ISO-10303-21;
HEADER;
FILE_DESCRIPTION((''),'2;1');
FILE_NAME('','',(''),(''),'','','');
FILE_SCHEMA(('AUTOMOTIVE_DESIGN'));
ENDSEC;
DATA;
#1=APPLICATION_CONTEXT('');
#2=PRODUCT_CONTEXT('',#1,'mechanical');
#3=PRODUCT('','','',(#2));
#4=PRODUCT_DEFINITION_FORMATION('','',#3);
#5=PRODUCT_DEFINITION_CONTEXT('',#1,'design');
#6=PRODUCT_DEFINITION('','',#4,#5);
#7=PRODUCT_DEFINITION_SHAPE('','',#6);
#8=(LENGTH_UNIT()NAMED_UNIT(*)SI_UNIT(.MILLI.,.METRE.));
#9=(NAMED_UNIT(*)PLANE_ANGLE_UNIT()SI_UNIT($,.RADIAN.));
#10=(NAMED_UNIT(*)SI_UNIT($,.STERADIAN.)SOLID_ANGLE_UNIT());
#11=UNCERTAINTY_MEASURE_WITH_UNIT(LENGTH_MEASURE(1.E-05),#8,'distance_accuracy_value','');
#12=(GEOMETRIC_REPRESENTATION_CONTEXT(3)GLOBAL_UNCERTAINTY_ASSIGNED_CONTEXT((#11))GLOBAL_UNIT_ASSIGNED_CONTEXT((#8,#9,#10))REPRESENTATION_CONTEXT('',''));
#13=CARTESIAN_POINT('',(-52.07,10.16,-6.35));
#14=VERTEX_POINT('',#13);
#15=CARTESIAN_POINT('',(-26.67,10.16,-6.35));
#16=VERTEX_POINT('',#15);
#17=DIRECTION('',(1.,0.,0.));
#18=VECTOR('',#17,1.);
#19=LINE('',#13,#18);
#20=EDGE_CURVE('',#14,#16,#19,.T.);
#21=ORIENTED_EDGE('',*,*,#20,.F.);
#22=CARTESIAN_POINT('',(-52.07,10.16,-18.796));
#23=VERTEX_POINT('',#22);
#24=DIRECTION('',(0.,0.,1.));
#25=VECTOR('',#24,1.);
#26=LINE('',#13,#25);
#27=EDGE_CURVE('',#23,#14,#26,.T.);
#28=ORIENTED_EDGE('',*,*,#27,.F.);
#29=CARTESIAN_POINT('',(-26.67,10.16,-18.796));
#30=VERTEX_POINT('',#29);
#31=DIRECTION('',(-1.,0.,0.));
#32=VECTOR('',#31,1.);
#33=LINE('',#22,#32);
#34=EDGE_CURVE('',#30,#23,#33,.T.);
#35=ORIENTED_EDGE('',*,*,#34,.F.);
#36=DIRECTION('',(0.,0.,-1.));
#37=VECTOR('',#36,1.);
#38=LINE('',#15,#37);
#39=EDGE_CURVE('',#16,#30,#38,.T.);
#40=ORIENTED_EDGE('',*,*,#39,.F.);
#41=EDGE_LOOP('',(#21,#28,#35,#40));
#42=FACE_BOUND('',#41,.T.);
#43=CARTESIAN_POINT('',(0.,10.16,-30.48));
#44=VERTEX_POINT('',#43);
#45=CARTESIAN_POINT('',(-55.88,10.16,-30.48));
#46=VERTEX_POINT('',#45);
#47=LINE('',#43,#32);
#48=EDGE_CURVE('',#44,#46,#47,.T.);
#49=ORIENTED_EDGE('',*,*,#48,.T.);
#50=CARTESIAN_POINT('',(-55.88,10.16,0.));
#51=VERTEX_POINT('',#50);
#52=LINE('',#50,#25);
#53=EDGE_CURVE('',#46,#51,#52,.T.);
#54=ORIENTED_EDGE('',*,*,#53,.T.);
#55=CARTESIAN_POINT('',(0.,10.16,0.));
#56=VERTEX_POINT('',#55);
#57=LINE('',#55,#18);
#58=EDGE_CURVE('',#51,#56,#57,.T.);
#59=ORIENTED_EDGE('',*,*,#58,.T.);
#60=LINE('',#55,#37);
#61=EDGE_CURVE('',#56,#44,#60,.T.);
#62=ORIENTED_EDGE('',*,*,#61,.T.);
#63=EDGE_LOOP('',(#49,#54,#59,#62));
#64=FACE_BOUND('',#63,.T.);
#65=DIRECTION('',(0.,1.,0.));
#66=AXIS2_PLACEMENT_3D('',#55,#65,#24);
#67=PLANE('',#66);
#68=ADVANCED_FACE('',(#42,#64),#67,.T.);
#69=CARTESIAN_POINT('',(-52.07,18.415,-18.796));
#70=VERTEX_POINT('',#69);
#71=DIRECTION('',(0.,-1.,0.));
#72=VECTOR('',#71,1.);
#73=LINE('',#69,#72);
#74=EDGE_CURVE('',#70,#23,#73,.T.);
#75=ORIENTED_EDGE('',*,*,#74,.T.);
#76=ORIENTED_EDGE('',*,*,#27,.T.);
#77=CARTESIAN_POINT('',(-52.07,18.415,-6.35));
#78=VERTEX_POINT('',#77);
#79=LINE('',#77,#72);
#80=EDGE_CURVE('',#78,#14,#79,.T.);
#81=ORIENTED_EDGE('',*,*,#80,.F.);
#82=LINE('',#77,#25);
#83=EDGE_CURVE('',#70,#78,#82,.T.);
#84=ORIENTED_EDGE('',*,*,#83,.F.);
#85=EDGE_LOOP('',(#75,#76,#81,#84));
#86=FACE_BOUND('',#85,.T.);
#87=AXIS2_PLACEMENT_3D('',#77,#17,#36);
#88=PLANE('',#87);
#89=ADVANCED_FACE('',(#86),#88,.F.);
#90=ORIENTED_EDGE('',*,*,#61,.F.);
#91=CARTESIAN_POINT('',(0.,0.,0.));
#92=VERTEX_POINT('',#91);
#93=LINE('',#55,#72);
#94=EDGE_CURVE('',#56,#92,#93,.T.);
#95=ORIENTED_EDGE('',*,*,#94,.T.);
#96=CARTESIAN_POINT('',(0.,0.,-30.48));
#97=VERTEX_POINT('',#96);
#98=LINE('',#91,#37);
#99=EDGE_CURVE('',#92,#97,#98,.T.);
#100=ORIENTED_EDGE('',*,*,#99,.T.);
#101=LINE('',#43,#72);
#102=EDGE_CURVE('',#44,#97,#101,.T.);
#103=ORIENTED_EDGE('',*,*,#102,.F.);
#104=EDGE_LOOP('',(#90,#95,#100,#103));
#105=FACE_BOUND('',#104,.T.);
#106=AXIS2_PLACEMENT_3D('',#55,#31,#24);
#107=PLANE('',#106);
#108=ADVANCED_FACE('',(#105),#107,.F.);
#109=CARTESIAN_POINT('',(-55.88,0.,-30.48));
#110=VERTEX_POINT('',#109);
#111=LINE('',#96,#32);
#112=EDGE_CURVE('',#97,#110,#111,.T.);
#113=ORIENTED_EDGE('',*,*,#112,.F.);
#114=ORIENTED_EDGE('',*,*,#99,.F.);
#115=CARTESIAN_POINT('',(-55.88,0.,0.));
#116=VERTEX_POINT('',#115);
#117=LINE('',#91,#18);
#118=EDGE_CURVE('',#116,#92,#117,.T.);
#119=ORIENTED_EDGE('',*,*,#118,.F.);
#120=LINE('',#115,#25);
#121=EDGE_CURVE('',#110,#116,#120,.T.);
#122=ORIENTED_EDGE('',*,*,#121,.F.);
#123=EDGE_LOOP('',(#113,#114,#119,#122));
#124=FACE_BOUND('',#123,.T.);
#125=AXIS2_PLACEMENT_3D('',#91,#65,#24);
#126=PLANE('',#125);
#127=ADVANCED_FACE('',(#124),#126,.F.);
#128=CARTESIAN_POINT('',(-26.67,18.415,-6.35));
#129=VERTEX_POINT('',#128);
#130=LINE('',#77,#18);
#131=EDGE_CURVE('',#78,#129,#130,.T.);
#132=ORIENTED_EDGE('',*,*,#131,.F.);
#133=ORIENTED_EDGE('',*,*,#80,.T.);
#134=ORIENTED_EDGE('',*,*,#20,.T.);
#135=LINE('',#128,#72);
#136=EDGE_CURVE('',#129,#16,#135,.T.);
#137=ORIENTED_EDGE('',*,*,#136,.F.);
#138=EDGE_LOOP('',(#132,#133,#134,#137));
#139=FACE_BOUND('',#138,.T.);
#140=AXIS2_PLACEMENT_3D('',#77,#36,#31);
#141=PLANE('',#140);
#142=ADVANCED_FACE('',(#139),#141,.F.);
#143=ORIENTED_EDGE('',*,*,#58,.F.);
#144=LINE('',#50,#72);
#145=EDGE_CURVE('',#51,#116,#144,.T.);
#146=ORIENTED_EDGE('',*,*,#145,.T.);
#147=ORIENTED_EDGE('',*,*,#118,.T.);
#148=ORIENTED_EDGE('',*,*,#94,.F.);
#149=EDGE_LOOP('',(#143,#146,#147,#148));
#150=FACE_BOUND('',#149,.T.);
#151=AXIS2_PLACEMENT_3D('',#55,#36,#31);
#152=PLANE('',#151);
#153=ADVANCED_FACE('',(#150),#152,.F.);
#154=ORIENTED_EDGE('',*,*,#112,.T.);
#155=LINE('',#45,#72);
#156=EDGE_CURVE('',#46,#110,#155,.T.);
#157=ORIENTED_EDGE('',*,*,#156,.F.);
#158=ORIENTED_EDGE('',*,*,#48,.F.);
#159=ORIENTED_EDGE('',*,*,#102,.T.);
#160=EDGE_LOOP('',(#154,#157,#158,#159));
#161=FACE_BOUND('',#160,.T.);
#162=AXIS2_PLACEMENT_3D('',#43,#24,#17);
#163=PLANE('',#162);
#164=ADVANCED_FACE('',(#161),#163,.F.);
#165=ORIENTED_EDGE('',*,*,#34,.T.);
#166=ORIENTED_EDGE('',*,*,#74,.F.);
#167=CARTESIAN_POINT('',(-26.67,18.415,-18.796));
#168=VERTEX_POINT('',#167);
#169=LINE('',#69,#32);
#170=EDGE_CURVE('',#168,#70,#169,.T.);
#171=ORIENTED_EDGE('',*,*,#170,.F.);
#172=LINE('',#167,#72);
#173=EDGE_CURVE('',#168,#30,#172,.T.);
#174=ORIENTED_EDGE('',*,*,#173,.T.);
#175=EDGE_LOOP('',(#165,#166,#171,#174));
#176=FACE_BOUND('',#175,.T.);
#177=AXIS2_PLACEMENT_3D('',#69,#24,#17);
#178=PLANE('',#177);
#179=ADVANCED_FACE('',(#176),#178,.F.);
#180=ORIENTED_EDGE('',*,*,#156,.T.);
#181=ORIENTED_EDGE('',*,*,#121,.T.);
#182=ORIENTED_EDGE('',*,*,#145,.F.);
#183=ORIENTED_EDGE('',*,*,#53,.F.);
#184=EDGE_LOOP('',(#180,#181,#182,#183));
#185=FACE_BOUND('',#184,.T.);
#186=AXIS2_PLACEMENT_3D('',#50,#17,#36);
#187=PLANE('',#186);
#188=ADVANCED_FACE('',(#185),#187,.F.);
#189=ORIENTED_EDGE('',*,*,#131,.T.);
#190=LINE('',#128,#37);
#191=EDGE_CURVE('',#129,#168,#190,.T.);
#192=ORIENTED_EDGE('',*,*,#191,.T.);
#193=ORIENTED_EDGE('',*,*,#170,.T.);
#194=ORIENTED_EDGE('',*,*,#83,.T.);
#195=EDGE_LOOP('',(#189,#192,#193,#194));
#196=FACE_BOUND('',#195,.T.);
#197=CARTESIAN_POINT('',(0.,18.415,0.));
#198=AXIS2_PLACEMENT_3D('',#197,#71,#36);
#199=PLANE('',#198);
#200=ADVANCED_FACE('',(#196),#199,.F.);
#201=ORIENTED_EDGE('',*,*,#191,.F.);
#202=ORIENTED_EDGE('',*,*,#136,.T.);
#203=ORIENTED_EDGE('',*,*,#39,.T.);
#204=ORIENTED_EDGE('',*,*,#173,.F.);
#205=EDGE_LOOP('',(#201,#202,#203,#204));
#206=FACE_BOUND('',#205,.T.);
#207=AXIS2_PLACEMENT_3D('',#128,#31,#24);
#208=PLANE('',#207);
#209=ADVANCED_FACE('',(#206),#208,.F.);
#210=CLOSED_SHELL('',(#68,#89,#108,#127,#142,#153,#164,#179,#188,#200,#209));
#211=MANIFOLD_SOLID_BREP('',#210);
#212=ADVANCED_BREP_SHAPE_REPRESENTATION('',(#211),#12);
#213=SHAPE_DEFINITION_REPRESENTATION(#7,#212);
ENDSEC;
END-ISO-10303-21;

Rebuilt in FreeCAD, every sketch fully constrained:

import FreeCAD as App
import Part
import Sketcher
Q = App.Units.Quantity

doc = App.newDocument("Part")
body = doc.addObject("PartDesign::Body", "Body")

# Sketch on XZ plane
sketch1 = body.newObject("Sketcher::SketchObject", "Sketch")
sketch1.AttachmentSupport = (doc.getObject("XZ_Plane"), [""])
sketch1.MapMode = "FlatFace"
sketch1.addGeometry([
    Part.LineSegment(App.Vector(-55.88, -30.48, 0), App.Vector(-55.88, 0, 0)),
    Part.LineSegment(App.Vector(-55.88, 0, 0), App.Vector(0, 0, 0)),
    Part.LineSegment(App.Vector(0, 0, 0), App.Vector(0, -30.48, 0)),
    Part.LineSegment(App.Vector(0, -30.48, 0), App.Vector(-55.88, -30.48, 0)),
], False)
sketch1.addConstraint([
    Sketcher.Constraint("Coincident", 0, 2, 1, 1),
    Sketcher.Constraint("Coincident", 1, 2, 2, 1),
    Sketcher.Constraint("Coincident", 2, 2, 3, 1),
    Sketcher.Constraint("Coincident", 3, 2, 0, 1),
    Sketcher.Constraint("Vertical", 0),
    Sketcher.Constraint("Horizontal", 1),
    Sketcher.Constraint("Vertical", 2),
    Sketcher.Constraint("Horizontal", 3),
    Sketcher.Constraint("Coincident", 1, 2, -1, 1),
    Sketcher.Constraint("DistanceX", 1, 1, 1, 2, Q("2.2 in")),
    Sketcher.Constraint("DistanceY", 0, 1, 0, 2, Q("1.2 in")),
])
pad1 = body.newObject("PartDesign::Pad", "Pad")
pad1.Profile = sketch1
pad1.Length = Q("0.4 in")
pad1.Reversed = True

# Sketch on XZ plane
sketch2 = body.newObject("Sketcher::SketchObject", "Sketch001")
sketch2.AttachmentSupport = (doc.getObject("XZ_Plane"), [""])
sketch2.MapMode = "FlatFace"
sketch2.AttachmentOffset = App.Placement(App.Vector(0, 0, -0.4 * 25.4), App.Rotation())
sketch2.addGeometry([
    Part.LineSegment(App.Vector(-52.07, -18.796, 0), App.Vector(-52.07, -6.35, 0)),
    Part.LineSegment(App.Vector(-52.07, -6.35, 0), App.Vector(-26.67, -6.35, 0)),
    Part.LineSegment(App.Vector(-26.67, -6.35, 0), App.Vector(-26.67, -18.796, 0)),
    Part.LineSegment(App.Vector(-26.67, -18.796, 0), App.Vector(-52.07, -18.796, 0)),
], False)
sketch2.addConstraint([
    Sketcher.Constraint("Coincident", 0, 2, 1, 1),
    Sketcher.Constraint("Coincident", 1, 2, 2, 1),
    Sketcher.Constraint("Coincident", 2, 2, 3, 1),
    Sketcher.Constraint("Coincident", 3, 2, 0, 1),
    Sketcher.Constraint("Vertical", 0),
    Sketcher.Constraint("Horizontal", 1),
    Sketcher.Constraint("Vertical", 2),
    Sketcher.Constraint("Horizontal", 3),
    Sketcher.Constraint("DistanceX", 1, 1, 1, 2, Q("1 in")),
    Sketcher.Constraint("DistanceY", 0, 1, 0, 2, Q("0.49 in")),
    Sketcher.Constraint("DistanceX", 0, 2, -1, 1, Q("2.05 in")),
    Sketcher.Constraint("DistanceY", 0, 2, -1, 1, Q("0.25 in")),
])
pad2 = body.newObject("PartDesign::Pad", "Pad001")
pad2.Profile = sketch2
pad2.Length = Q("0.325 in")
pad2.Reversed = True

doc.recompute()
